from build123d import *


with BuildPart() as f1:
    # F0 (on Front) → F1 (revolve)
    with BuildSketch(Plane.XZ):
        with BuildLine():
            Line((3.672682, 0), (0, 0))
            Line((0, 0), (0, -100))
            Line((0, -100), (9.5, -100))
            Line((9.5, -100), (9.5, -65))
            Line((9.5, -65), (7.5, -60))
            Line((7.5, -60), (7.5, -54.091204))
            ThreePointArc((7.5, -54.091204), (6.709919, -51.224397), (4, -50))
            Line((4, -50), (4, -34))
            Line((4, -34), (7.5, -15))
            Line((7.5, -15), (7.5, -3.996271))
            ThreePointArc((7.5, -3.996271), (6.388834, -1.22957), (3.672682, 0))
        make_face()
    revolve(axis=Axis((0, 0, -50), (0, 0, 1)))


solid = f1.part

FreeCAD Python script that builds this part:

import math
import FreeCAD as App
import Part
import Sketcher

V = App.Vector

doc = App.newDocument("Part")
params = doc.addObject("Spreadsheet::Sheet", "Params")
for row, (alias, value) in enumerate([
    ("sketch1_radius", "4.000001 mm"),
    ("sketch1_radius2", "3.5 mm"),
    ("sketch1_height", "100 mm"),
    ("sketch1_height2", "35 mm"),
    ("sketch1_height3", "16 mm"),
    ("revolution_angle", "360 deg"),
], start=1):
    params.set(f"A{row}", alias)
    params.set(f"B{row}", "=" + value)
    params.setAlias(f"B{row}", alias)

body = doc.addObject("PartDesign::Body", "Body")

sketch1 = body.newObject("Sketcher::SketchObject", "Sketch")
sketch1.AttachmentSupport = (doc.getObject("XZ_Plane"), [""])
sketch1.MapMode = "FlatFace"
sketch1.addGeometry([
    Part.LineSegment(V(3.7, 0, 0), V(0, 0, 0)),
    Part.LineSegment(V(0, 0, 0), V(0, -100, 0)),
    Part.LineSegment(V(0, -100, 0), V(9.5, -100, 0)),
    Part.LineSegment(V(9.5, -100, 0), V(9.5, -65, 0)),
    Part.LineSegment(V(9.5, -65, 0), V(7.5, -60, 0)),
    Part.LineSegment(V(7.5, -60, 0), V(7.5, -54.1, 0)),
    Part.ArcOfCircle(Part.Circle(V(4.1, -53.5, 0), V(0, 0, 1), 3.5), math.radians(-10), math.radians(91)),
    Part.LineSegment(V(4, -50, 0), V(4, -34, 0)),
    Part.LineSegment(V(4, -34, 0), V(7.5, -15, 0)),
    Part.LineSegment(V(7.5, -15, 0), V(7.5, -4, 0)),
    Part.ArcOfCircle(Part.Circle(V(3.5, -4, 0), V(0, 0, 1), 4), math.radians(0), math.radians(88)),
], False)
sketch1.addConstraint([
    Sketcher.Constraint("Coincident", 0, 2, 1, 1),
    Sketcher.Constraint("Coincident", 1, 2, 2, 1),
    Sketcher.Constraint("Coincident", 2, 2, 3, 1),
    Sketcher.Constraint("Coincident", 3, 2, 4, 1),
    Sketcher.Constraint("Coincident", 4, 2, 5, 1),
    Sketcher.Constraint("Coincident", 5, 2, 6, 1),
    Sketcher.Constraint("Coincident", 6, 2, 7, 1),
    Sketcher.Constraint("Coincident", 7, 2, 8, 1),
    Sketcher.Constraint("Coincident", 8, 2, 9, 1),
    Sketcher.Constraint("Tangent", 9, 2, 10, 1),
    Sketcher.Constraint("Coincident", 10, 2, 0, 1),
    Sketcher.Constraint("Horizontal", 0),
    Sketcher.Constraint("Vertical", 1),
    Sketcher.Constraint("Horizontal", 2),
    Sketcher.Constraint("Vertical", 3),
    Sketcher.Constraint("Vertical", 5),
    Sketcher.Constraint("Vertical", 7),
    Sketcher.Constraint("Vertical", 9),
    Sketcher.Constraint("Coincident", 0, 2, -1, 1),
    Sketcher.Constraint("Vertical", 5, 2, 8, 2),
    Sketcher.Constraint("Radius", 10, 4.000001),
    Sketcher.Constraint("Radius", 6, 3.5),
    Sketcher.Constraint("DistanceY", 1, 2, 1, 1, 100.0),
    Sketcher.Constraint("DistanceY", 3, 1, 3, 2, 35.0),
    Sketcher.Constraint("DistanceY", 7, 1, 7, 2, 16.0),
    Sketcher.Constraint("DistanceX", 2, 1, 2, 2, 9.5),
    Sketcher.Constraint("DistanceY", 4, 2, -1, 1, 60.0),
    Sketcher.Constraint("DistanceX", -1, 1, 6, 2, 4.0),
    Sketcher.Constraint("DistanceY", 6, 2, -1, 1, 50.0),
    Sketcher.Constraint("DistanceY", 8, 2, -1, 1, 15.0),
    Sketcher.Constraint("DistanceX", 10, 3, 2, 2, 6.000001),
    Sketcher.Constraint("DistanceX", 0, 2, 0, 1, 3.672682),
    Sketcher.Constraint("DistanceY", 5, 1, 5, 2, 5.908796),
])
sketch1.setExpression("Constraints[20]", "Params.sketch1_radius")
sketch1.setExpression("Constraints[21]", "Params.sketch1_radius2")
sketch1.setExpression("Constraints[22]", "Params.sketch1_height")
sketch1.setExpression("Constraints[23]", "Params.sketch1_height2")
sketch1.setExpression("Constraints[24]", "Params.sketch1_height3")
revolution = body.newObject("PartDesign::Revolution", "Revolution")
revolution.Profile = sketch1
revolution.ReferenceAxis = (sketch1, ["V_Axis"])
revolution.setExpression("Angle", "Params.revolution_angle")

doc.recompute()
